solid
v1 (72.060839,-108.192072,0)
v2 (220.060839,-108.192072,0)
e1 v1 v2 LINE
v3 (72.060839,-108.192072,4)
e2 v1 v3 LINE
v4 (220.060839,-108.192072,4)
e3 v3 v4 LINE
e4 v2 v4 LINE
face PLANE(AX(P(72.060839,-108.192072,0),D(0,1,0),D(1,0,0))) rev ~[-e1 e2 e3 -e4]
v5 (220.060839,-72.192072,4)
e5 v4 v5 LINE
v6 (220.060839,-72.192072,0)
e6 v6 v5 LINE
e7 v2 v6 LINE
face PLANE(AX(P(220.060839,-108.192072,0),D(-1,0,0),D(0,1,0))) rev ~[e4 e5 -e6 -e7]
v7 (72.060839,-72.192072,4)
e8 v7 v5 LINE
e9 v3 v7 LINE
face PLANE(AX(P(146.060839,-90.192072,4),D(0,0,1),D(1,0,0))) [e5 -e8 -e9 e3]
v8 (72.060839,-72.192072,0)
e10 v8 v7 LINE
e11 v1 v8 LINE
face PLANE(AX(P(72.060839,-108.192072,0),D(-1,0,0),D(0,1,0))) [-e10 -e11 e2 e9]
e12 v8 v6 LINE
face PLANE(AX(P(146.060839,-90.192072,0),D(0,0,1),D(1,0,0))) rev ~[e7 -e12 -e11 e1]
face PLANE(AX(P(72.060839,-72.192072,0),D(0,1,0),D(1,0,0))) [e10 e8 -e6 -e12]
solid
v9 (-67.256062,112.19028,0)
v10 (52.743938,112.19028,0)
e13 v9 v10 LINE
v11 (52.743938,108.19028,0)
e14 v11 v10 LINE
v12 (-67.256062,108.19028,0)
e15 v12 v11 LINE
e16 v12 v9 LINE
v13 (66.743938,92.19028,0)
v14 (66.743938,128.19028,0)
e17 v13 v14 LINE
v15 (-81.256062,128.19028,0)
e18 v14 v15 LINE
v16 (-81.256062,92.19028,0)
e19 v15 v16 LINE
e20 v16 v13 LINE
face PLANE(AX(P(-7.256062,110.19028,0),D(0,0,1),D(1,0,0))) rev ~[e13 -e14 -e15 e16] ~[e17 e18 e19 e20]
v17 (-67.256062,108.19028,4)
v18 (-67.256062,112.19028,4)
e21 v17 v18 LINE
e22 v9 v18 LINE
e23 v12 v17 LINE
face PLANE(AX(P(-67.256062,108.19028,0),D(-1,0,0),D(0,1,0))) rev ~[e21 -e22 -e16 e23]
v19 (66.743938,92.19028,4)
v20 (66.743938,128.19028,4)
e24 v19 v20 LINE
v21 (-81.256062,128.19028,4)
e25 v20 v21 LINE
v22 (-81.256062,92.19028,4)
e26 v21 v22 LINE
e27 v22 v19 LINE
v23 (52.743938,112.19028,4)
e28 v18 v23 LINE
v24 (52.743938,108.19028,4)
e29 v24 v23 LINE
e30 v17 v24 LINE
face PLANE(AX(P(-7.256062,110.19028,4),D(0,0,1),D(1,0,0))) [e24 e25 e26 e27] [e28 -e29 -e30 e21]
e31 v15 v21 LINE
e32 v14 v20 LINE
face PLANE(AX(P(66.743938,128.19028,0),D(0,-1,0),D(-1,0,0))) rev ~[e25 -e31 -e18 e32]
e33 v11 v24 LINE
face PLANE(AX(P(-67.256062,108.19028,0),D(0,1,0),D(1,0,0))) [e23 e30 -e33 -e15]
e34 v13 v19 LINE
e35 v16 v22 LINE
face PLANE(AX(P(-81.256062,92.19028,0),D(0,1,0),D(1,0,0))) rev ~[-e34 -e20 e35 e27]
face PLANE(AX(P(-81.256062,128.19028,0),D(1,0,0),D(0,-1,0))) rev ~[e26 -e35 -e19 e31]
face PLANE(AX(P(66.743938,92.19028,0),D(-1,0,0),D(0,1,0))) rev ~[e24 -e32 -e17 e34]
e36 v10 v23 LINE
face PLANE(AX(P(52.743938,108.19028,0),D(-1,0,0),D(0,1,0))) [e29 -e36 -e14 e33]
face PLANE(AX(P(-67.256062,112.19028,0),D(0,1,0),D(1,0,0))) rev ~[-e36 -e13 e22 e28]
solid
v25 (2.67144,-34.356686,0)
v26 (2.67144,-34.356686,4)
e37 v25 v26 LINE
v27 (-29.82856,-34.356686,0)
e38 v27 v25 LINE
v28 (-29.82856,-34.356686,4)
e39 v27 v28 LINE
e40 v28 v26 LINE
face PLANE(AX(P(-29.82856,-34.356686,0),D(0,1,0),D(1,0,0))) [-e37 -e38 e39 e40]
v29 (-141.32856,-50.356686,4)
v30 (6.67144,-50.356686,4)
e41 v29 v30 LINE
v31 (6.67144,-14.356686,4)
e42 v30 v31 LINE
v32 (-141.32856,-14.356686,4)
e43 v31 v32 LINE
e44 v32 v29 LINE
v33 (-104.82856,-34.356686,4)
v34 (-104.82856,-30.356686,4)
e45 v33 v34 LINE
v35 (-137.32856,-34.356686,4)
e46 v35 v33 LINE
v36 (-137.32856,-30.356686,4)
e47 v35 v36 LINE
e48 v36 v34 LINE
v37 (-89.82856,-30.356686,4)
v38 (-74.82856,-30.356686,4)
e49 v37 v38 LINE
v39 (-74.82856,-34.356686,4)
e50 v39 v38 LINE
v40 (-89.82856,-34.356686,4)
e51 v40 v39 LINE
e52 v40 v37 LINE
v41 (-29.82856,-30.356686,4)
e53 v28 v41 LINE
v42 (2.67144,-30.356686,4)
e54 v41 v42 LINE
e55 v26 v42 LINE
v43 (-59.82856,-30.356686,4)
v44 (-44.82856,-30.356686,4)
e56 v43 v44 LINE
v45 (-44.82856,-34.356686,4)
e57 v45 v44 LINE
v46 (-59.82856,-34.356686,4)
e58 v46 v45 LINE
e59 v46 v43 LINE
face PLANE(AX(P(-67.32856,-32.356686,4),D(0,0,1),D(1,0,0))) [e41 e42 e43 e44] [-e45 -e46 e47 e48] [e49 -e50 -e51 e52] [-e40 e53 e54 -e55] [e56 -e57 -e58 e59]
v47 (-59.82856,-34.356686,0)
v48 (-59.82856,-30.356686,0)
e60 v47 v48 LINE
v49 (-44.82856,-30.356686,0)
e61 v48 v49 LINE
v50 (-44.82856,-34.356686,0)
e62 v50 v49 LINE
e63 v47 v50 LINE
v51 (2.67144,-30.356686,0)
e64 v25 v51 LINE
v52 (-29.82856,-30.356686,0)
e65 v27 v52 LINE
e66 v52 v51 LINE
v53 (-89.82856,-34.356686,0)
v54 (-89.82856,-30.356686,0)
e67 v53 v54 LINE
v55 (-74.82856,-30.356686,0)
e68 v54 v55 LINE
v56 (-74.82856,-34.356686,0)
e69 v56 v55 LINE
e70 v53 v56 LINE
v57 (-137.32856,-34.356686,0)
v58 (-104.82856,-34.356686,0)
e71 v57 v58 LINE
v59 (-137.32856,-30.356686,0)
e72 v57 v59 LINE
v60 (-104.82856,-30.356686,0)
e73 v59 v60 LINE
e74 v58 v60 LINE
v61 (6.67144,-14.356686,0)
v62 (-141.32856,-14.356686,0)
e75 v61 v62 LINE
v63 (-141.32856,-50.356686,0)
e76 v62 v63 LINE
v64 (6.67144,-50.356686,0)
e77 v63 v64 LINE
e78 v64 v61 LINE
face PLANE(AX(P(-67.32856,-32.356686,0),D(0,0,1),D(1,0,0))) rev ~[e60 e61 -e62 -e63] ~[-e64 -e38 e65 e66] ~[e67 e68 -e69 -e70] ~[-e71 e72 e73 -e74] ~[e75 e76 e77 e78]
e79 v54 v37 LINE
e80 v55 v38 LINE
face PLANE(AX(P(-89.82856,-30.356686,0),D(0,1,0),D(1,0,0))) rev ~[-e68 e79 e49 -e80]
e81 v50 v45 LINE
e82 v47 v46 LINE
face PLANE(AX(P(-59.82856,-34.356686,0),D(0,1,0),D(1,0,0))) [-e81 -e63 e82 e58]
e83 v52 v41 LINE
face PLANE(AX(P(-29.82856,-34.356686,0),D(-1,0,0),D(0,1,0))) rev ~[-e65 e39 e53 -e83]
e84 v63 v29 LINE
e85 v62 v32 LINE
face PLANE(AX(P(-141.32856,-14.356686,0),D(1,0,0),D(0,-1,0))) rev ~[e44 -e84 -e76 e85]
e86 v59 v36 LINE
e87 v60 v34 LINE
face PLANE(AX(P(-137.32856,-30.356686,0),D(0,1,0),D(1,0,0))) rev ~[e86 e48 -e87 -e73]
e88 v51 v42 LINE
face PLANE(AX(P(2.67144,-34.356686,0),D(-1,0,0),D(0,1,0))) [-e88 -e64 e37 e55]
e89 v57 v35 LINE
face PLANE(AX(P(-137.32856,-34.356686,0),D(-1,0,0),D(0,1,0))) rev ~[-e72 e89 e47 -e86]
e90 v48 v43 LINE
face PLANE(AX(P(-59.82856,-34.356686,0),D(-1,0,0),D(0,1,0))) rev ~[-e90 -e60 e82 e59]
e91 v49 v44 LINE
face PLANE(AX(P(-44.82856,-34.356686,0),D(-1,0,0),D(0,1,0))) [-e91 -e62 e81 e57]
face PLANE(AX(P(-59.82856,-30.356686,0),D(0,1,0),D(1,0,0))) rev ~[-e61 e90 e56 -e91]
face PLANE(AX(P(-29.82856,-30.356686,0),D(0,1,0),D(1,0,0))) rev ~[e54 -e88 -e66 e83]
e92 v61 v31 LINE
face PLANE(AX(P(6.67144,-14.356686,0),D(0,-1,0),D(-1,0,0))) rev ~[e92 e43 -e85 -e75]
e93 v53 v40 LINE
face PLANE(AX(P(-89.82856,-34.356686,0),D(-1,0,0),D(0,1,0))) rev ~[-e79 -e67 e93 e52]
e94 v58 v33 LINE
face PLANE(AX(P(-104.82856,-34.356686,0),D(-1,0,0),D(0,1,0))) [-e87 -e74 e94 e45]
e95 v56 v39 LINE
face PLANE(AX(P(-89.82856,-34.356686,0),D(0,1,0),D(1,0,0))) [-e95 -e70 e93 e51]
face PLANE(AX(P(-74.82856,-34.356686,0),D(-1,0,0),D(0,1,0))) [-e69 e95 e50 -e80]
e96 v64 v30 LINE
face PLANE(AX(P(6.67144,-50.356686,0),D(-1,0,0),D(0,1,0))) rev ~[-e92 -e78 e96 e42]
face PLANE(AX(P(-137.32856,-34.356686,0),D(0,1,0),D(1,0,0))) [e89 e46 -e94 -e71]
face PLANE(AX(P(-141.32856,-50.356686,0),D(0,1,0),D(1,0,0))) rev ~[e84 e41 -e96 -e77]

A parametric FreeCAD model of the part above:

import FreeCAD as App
import Part
import Sketcher

doc = App.newDocument("Part")
body = doc.addObject("PartDesign::Body", "Body")

# Sketch on XY plane
sketch1 = body.newObject("Sketcher::SketchObject", "Sketch")
sketch1.AttachmentSupport = (doc.getObject("XY_Plane"), [""])
sketch1.MapMode = "FlatFace"
sketch1.addGeometry(Part.LineSegment(App.Vector(6.7, -14.4, 0), App.Vector(-141.3, -14.4, 0)), False)
sketch1.addGeometry(Part.LineSegment(App.Vector(-141.3, -14.4, 0), App.Vector(-141.3, -50.4, 0)), False)
sketch1.addGeometry(Part.LineSegment(App.Vector(-141.3, -50.4, 0), App.Vector(6.7, -50.4, 0)), False)
sketch1.addGeometry(Part.LineSegment(App.Vector(6.7, -50.4, 0), App.Vector(6.7, -14.4, 0)), False)
sketch1.addGeometry(Part.LineSegment(App.Vector(-104.8, -34.4, 0), App.Vector(-137.3, -34.4, 0)), False)
sketch1.addGeometry(Part.LineSegment(App.Vector(-137.3, -34.4, 0), App.Vector(-137.3, -30.4, 0)), False)
sketch1.addGeometry(Part.LineSegment(App.Vector(-137.3, -30.4, 0), App.Vector(-104.8, -30.4, 0)), False)
sketch1.addGeometry(Part.LineSegment(App.Vector(-104.8, -30.4, 0), App.Vector(-104.8, -34.4, 0)), False)
sketch1.addGeometry(Part.LineSegment(App.Vector(-74.8, -34.4, 0), App.Vector(-89.8, -34.4, 0)), False)
sketch1.addGeometry(Part.LineSegment(App.Vector(-89.8, -34.4, 0), App.Vector(-89.8, -30.4, 0)), False)
sketch1.addGeometry(Part.LineSegment(App.Vector(-89.8, -30.4, 0), App.Vector(-74.8, -30.4, 0)), False)
sketch1.addGeometry(Part.LineSegment(App.Vector(-74.8, -30.4, 0), App.Vector(-74.8, -34.4, 0)), False)
sketch1.addGeometry(Part.LineSegment(App.Vector(-44.8, -34.4, 0), App.Vector(-59.8, -34.4, 0)), False)
sketch1.addGeometry(Part.LineSegment(App.Vector(-59.8, -34.4, 0), App.Vector(-59.8, -30.4, 0)), False)
sketch1.addGeometry(Part.LineSegment(App.Vector(-59.8, -30.4, 0), App.Vector(-44.8, -30.4, 0)), False)
sketch1.addGeometry(Part.LineSegment(App.Vector(-44.8, -30.4, 0), App.Vector(-44.8, -34.4, 0)), False)
sketch1.addGeometry(Part.LineSegment(App.Vector(2.7, -34.4, 0), App.Vector(-29.8, -34.4, 0)), False)
sketch1.addGeometry(Part.LineSegment(App.Vector(-29.8, -34.4, 0), App.Vector(-29.8, -30.4, 0)), False)
sketch1.addGeometry(Part.LineSegment(App.Vector(-29.8, -30.4, 0), App.Vector(2.7, -30.4, 0)), False)
sketch1.addGeometry(Part.LineSegment(App.Vector(2.7, -30.4, 0), App.Vector(2.7, -34.4, 0)), False)
sketch1.addConstraint(Sketcher.Constraint("Coincident", 0, 2, 1, 1))
sketch1.addConstraint(Sketcher.Constraint("Coincident", 1, 2, 2, 1))
sketch1.addConstraint(Sketcher.Constraint("Coincident", 2, 2, 3, 1))
sketch1.addConstraint(Sketcher.Constraint("Coincident", 3, 2, 0, 1))
sketch1.addConstraint(Sketcher.Constraint("Coincident", 4, 2, 5, 1))
sketch1.addConstraint(Sketcher.Constraint("Coincident", 5, 2, 6, 1))
sketch1.addConstraint(Sketcher.Constraint("Coincident", 6, 2, 7, 1))
sketch1.addConstraint(Sketcher.Constraint("Coincident", 7, 2, 4, 1))
sketch1.addConstraint(Sketcher.Constraint("Coincident", 8, 2, 9, 1))
sketch1.addConstraint(Sketcher.Constraint("Coincident", 9, 2, 10, 1))
sketch1.addConstraint(Sketcher.Constraint("Coincident", 10, 2, 11, 1))
sketch1.addConstraint(Sketcher.Constraint("Coincident", 11, 2, 8, 1))
sketch1.addConstraint(Sketcher.Constraint("Coincident", 12, 2, 13, 1))
sketch1.addConstraint(Sketcher.Constraint("Coincident", 13, 2, 14, 1))
sketch1.addConstraint(Sketcher.Constraint("Coincident", 14, 2, 15, 1))
sketch1.addConstraint(Sketcher.Constraint("Coincident", 15, 2, 12, 1))
sketch1.addConstraint(Sketcher.Constraint("Coincident", 16, 2, 17, 1))
sketch1.addConstraint(Sketcher.Constraint("Coincident", 17, 2, 18, 1))
sketch1.addConstraint(Sketcher.Constraint("Coincident", 18, 2, 19, 1))
sketch1.addConstraint(Sketcher.Constraint("Coincident", 19, 2, 16, 1))
sketch1.addConstraint(Sketcher.Constraint("Horizontal", 0))
sketch1.addConstraint(Sketcher.Constraint("Vertical", 1))
sketch1.addConstraint(Sketcher.Constraint("Horizontal", 2))
sketch1.addConstraint(Sketcher.Constraint("Vertical", 3))
sketch1.addConstraint(Sketcher.Constraint("Horizontal", 4))
sketch1.addConstraint(Sketcher.Constraint("Vertical", 5))
sketch1.addConstraint(Sketcher.Constraint("Horizontal", 6))
sketch1.addConstraint(Sketcher.Constraint("Vertical", 7))
sketch1.addConstraint(Sketcher.Constraint("Horizontal", 8))
sketch1.addConstraint(Sketcher.Constraint("Vertical", 9))
sketch1.addConstraint(Sketcher.Constraint("Horizontal", 10))
sketch1.addConstraint(Sketcher.Constraint("Vertical", 11))
sketch1.addConstraint(Sketcher.Constraint("Horizontal", 12))
sketch1.addConstraint(Sketcher.Constraint("Vertical", 13))
sketch1.addConstraint(Sketcher.Constraint("Horizontal", 14))
sketch1.addConstraint(Sketcher.Constraint("Vertical", 15))
sketch1.addConstraint(Sketcher.Constraint("Horizontal", 16))
sketch1.addConstraint(Sketcher.Constraint("Vertical", 17))
sketch1.addConstraint(Sketcher.Constraint("Horizontal", 18))
sketch1.addConstraint(Sketcher.Constraint("Vertical", 19))
sketch1.addConstraint(Sketcher.Constraint("Horizontal", 7, 2, 8, 2))
sketch1.addConstraint(Sketcher.Constraint("Horizontal", 6, 2, 9, 2))
sketch1.addConstraint(Sketcher.Constraint("Horizontal", 11, 2, 12, 2))
sketch1.addConstraint(Sketcher.Constraint("Horizontal", 10, 2, 13, 2))
sketch1.addConstraint(Sketcher.Constraint("Horizontal", 15, 2, 16, 2))
sketch1.addConstraint(Sketcher.Constraint("Horizontal", 14, 2, 17, 2))
sketch1.addConstraint(Sketcher.Constraint("Equal", 10, 12))
sketch1.addConstraint(Sketcher.Constraint("Equal", 6, 16))
sketch1.addConstraint(Sketcher.Constraint("DistanceX", 0, 2, 0, 1, 148.0))
sketch1.addConstraint(Sketcher.Constraint("DistanceX", 8, 2, 8, 1, 15.0))
sketch1.addConstraint(Sketcher.Constraint("DistanceY", 1, 2, 1, 1, 36.0))
sketch1.addConstraint(Sketcher.Constraint("DistanceY", 5, 1, 5, 2, 4.0))
sketch1.addConstraint(Sketcher.Constraint("DistanceX", 4, 2, 4, 1, 32.5))
sketch1.addConstraint(Sketcher.Constraint("DistanceX", 1, 2, 4, 2, 4.0))
sketch1.addConstraint(Sketcher.Constraint("DistanceY", 1, 2, 4, 2, 16.0))
sketch1.addConstraint(Sketcher.Constraint("DistanceX", 7, 2, 8, 2, 15.0))
sketch1.addConstraint(Sketcher.Constraint("DistanceX", 11, 2, 12, 2, 15.0))
sketch1.addConstraint(Sketcher.Constraint("DistanceX", 15, 2, 16, 2, 15.0))
sketch1.addConstraint(Sketcher.Constraint("DistanceX", 0, 2, -1, 1, 141.32856))
sketch1.addConstraint(Sketcher.Constraint("DistanceY", 0, 2, -1, 1, 14.356686))
pad1 = body.newObject("PartDesign::Pad", "Pad")
pad1.Profile = sketch1
pad1.Length = 4
body2 = doc.addObject("PartDesign::Body", "Body001")

# Sketch on XY plane
sketch2 = body2.newObject("Sketcher::SketchObject", "Sketch001")
sketch2.AttachmentSupport = (doc.getObject("XY_Plane001"), [""])
sketch2.MapMode = "FlatFace"
sketch2.addGeometry(Part.LineSegment(App.Vector(66.7, 128.2, 0), App.Vector(-81.3, 128.2, 0)), False)
sketch2.addGeometry(Part.LineSegment(App.Vector(-81.3, 128.2, 0), App.Vector(-81.3, 92.2, 0)), False)
sketch2.addGeometry(Part.LineSegment(App.Vector(-81.3, 92.2, 0), App.Vector(66.7, 92.2, 0)), False)
sketch2.addGeometry(Part.LineSegment(App.Vector(66.7, 92.2, 0), App.Vector(66.7, 128.2, 0)), False)
sketch2.addGeometry(Part.LineSegment(App.Vector(52.7, 108.2, 0), App.Vector(-67.3, 108.2, 0)), False)
sketch2.addGeometry(Part.LineSegment(App.Vector(-67.3, 108.2, 0), App.Vector(-67.3, 112.2, 0)), False)
sketch2.addGeometry(Part.LineSegment(App.Vector(-67.3, 112.2, 0), App.Vector(52.7, 112.2, 0)), False)
sketch2.addGeometry(Part.LineSegment(App.Vector(52.7, 112.2, 0), App.Vector(52.7, 108.2, 0)), False)
sketch2.addConstraint(Sketcher.Constraint("Coincident", 0, 2, 1, 1))
sketch2.addConstraint(Sketcher.Constraint("Coincident", 1, 2, 2, 1))
sketch2.addConstraint(Sketcher.Constraint("Coincident", 2, 2, 3, 1))
sketch2.addConstraint(Sketcher.Constraint("Coincident", 3, 2, 0, 1))
sketch2.addConstraint(Sketcher.Constraint("Coincident", 4, 2, 5, 1))
sketch2.addConstraint(Sketcher.Constraint("Coincident", 5, 2, 6, 1))
sketch2.addConstraint(Sketcher.Constraint("Coincident", 6, 2, 7, 1))
sketch2.addConstraint(Sketcher.Constraint("Coincident", 7, 2, 4, 1))
sketch2.addConstraint(Sketcher.Constraint("Horizontal", 0))
sketch2.addConstraint(Sketcher.Constraint("Vertical", 1))
sketch2.addConstraint(Sketcher.Constraint("Horizontal", 2))
sketch2.addConstraint(Sketcher.Constraint("Vertical", 3))
sketch2.addConstraint(Sketcher.Constraint("Horizontal", 4))
sketch2.addConstraint(Sketcher.Constraint("Vertical", 5))
sketch2.addConstraint(Sketcher.Constraint("Horizontal", 6))
sketch2.addConstraint(Sketcher.Constraint("Vertical", 7))
sketch2.addConstraint(Sketcher.Constraint("DistanceX", 0, 2, 0, 1, 148.0))
sketch2.addConstraint(Sketcher.Constraint("DistanceX", 4, 2, 4, 1, 120.0))
sketch2.addConstraint(Sketcher.Constraint("DistanceY", 1, 2, 1, 1, 36.0))
sketch2.addConstraint(Sketcher.Constraint("DistanceY", 5, 1, 5, 2, 4.0))
sketch2.addConstraint(Sketcher.Constraint("DistanceX", 1, 2, 4, 2, 14.0))
sketch2.addConstraint(Sketcher.Constraint("DistanceY", 1, 2, 4, 2, 16.0))
sketch2.addConstraint(Sketcher.Constraint("DistanceX", 0, 2, -1, 1, 81.256062))
sketch2.addConstraint(Sketcher.Constraint("DistanceY", -1, 1, 0, 2, 128.19028))
pad2 = body2.newObject("PartDesign::Pad", "Pad001")
pad2.Profile = sketch2
pad2.Length = 4
body3 = doc.addObject("PartDesign::Body", "Body002")

# Sketch on XY plane
sketch3 = body3.newObject("Sketcher::SketchObject", "Sketch002")
sketch3.AttachmentSupport = (doc.getObject("XY_Plane002"), [""])
sketch3.MapMode = "FlatFace"
sketch3.addGeometry(Part.LineSegment(App.Vector(72, -72, 0), App.Vector(72, -108, 0)), False)
sketch3.addGeometry(Part.LineSegment(App.Vector(72, -108, 0), App.Vector(220, -108, 0)), False)
sketch3.addGeometry(Part.LineSegment(App.Vector(220, -108, 0), App.Vector(220, -72, 0)), False)
sketch3.addGeometry(Part.LineSegment(App.Vector(220, -72, 0), App.Vector(72, -72, 0)), False)
sketch3.addConstraint(Sketcher.Constraint("Coincident", 0, 2, 1, 1))
sketch3.addConstraint(Sketcher.Constraint("Coincident", 1, 2, 2, 1))
sketch3.addConstraint(Sketcher.Constraint("Coincident", 2, 2, 3, 1))
sketch3.addConstraint(Sketcher.Constraint("Coincident", 3, 2, 0, 1))
sketch3.addConstraint(Sketcher.Constraint("Vertical", 0))
sketch3.addConstraint(Sketcher.Constraint("Horizontal", 1))
sketch3.addConstraint(Sketcher.Constraint("Vertical", 2))
sketch3.addConstraint(Sketcher.Constraint("Horizontal", 3))
sketch3.addConstraint(Sketcher.Constraint("DistanceX", 1, 1, 1, 2, 148.0))
sketch3.addConstraint(Sketcher.Constraint("DistanceY", 0, 2, 0, 1, 36.0))
sketch3.addConstraint(Sketcher.Constraint("DistanceX", -1, 1, 0, 2, 72.060839))
sketch3.addConstraint(Sketcher.Constraint("DistanceY", 0, 2, -1, 1, 108.192072))
pad3 = body3.newObject("PartDesign::Pad", "Pad002")
pad3.Profile = sketch3
pad3.Length = 4

doc.recompute()
